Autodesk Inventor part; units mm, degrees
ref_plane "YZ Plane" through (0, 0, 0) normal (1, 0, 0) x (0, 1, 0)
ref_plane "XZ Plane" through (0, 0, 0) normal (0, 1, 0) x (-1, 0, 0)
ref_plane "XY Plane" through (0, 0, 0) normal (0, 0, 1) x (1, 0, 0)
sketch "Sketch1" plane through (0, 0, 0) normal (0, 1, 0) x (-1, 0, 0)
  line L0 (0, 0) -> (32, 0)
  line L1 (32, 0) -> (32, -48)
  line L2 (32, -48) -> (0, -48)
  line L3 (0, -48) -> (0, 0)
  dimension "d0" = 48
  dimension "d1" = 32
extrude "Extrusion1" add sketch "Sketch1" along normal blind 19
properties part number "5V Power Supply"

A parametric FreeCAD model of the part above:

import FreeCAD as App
import Part
import Sketcher
from FreeCAD import Vector


def add_polygon(sketch, points):
    """Adds a closed chain of lines whose ends are joined by coincident constraints."""
    first, n = sketch.GeometryCount, len(points)
    for a, b in zip(points, points[1:] + points[:1]):
        sketch.addGeometry(Part.LineSegment(App.Vector(*a, 0), App.Vector(*b, 0)), False)
    for i in range(n):
        sketch.addConstraint(Sketcher.Constraint("Coincident", first + i, 2, first + (i + 1) % n, 1))

doc = App.newDocument("Part")
body = doc.addObject("PartDesign::Body", "Body")

sketch1 = body.newObject("Sketcher::SketchObject", "Sketch")
sketch1.AttachmentSupport = (doc.getObject("XZ_Plane"), [""])
sketch1.MapMode = "FlatFace"
add_polygon(sketch1, [(-32, 0), (0, 0), (0, -48), (-32, -48)])
sketch1.addConstraint([
    Sketcher.Constraint("Horizontal", 0),
    Sketcher.Constraint("Vertical", 1),
    Sketcher.Constraint("Horizontal", 2),
    Sketcher.Constraint("Vertical", 3),
    Sketcher.Constraint("Coincident", 0, 2, -1, 1),
    Sketcher.Constraint("DistanceX", 0, 1, 0, 2, 32.0),
    Sketcher.Constraint("DistanceY", 1, 2, 1, 1, 48.0),
])
pad1 = body.newObject("PartDesign::Pad", "Pad")
pad1.Profile = sketch1
pad1.Length = 19
pad1.Reversed = True

doc.recompute()
